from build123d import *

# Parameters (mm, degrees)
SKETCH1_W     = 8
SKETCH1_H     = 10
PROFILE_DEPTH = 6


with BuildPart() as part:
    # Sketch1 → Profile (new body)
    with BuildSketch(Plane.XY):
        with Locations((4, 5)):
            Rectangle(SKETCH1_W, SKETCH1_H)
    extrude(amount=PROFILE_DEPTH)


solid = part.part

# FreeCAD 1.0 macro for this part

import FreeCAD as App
import Part
import Sketcher
from FreeCAD import Vector
Q = App.Units.Quantity

doc = App.newDocument("Part")
body = doc.addObject("PartDesign::Body", "Body")

# Sketch on XY plane
sketch1 = body.newObject("Sketcher::SketchObject", "Sketch")
sketch1.AttachmentSupport = (doc.getObject("XY_Plane"), [""])
sketch1.MapMode = "FlatFace"
sketch1.addGeometry(Part.LineSegment(Vector(0, 10, 0), Vector(0, 0, 0)), False)
sketch1.addGeometry(Part.LineSegment(Vector(0, 0, 0), Vector(8, 0, 0)), False)
sketch1.addGeometry(Part.LineSegment(Vector(8, 0, 0), Vector(8, 10, 0)), False)
sketch1.addGeometry(Part.LineSegment(Vector(8, 10, 0), Vector(0, 10, 0)), False)
sketch1.addConstraint(Sketcher.Constraint("Coincident", 0, 2, 1, 1))
sketch1.addConstraint(Sketcher.Constraint("Coincident", 1, 2, 2, 1))
sketch1.addConstraint(Sketcher.Constraint("Coincident", 2, 2, 3, 1))
sketch1.addConstraint(Sketcher.Constraint("Coincident", 3, 2, 0, 1))
sketch1.addConstraint(Sketcher.Constraint("Vertical", 0))
sketch1.addConstraint(Sketcher.Constraint("Horizontal", 1))
sketch1.addConstraint(Sketcher.Constraint("Vertical", 2))
sketch1.addConstraint(Sketcher.Constraint("Horizontal", 3))
sketch1.addConstraint(Sketcher.Constraint("Coincident", 0, 2, -1, 1))
sketch1.addConstraint(Sketcher.Constraint("DistanceX", 1, 1, 1, 2, Q("8 mm")))
sketch1.addConstraint(Sketcher.Constraint("DistanceY", 0, 2, 0, 1, Q("10 mm")))
pad1 = body.newObject("PartDesign::Pad", "Pad")
pad1.Profile = sketch1
pad1.Length = 6

doc.recompute()
